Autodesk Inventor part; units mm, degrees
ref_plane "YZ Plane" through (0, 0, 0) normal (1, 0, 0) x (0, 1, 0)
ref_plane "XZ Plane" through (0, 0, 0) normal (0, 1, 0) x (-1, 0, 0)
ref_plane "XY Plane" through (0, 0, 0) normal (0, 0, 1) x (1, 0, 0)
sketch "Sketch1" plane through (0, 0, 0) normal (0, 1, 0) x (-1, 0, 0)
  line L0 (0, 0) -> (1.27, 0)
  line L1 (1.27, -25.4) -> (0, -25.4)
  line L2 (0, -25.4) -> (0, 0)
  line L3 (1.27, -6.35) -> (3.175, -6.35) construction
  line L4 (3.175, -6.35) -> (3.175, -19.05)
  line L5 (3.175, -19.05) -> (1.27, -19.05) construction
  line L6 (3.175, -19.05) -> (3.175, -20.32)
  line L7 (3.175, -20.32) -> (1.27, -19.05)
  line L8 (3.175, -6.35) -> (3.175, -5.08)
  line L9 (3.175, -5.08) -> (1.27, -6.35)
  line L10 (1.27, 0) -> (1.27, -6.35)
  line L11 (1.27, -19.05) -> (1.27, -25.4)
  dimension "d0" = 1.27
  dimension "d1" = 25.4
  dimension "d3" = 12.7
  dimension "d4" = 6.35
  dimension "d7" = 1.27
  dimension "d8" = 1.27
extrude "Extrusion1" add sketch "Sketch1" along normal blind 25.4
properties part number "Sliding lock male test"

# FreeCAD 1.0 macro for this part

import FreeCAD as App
import Part
import Sketcher

V = App.Vector
Q = App.Units.Quantity


def add_polygon(sketch, points):
    """Adds a closed chain of lines whose ends are joined by coincident constraints."""
    first, n = sketch.GeometryCount, len(points)
    for a, b in zip(points, points[1:] + points[:1]):
        sketch.addGeometry(Part.LineSegment(App.Vector(*a, 0), App.Vector(*b, 0)), False)
    for i in range(n):
        sketch.addConstraint(Sketcher.Constraint("Coincident", first + i, 2, first + (i + 1) % n, 1))

doc = App.newDocument("Part")
body = doc.addObject("PartDesign::Body", "Body")

# Sketch on XZ plane
sketch1 = doc.addObject("Sketcher::SketchObject", "Sketch")
body.addObject(sketch1)
sketch1.AttachmentSupport = (doc.XZ_Plane, [""])
sketch1.MapMode = "FlatFace"
add_polygon(sketch1, [(-1.3, 0), (0, 0), (0, -25.4), (-1.3, -25.4), (-1.3, -19.1), (-3.2, -20.3), (-3.2, -5.1), (-1.3, -6.3)])  # lines 0-7
sketch1.addConstraint([
    Sketcher.Constraint("Horizontal", 0),
    Sketcher.Constraint("Vertical", 1),
    Sketcher.Constraint("Horizontal", 2),
    Sketcher.Constraint("Vertical", 3),
    Sketcher.Constraint("Vertical", 5),
    Sketcher.Constraint("Vertical", 7),
    Sketcher.Constraint("Coincident", 0, 2, -1, 1),
    Sketcher.Constraint("Vertical", 3, 2, 6, 2),
    Sketcher.Constraint("Equal", 3, 7),
    Sketcher.Constraint("Equal", 4, 6),
    Sketcher.Constraint("DistanceY", 1, 2, 1, 1, Q("1 in")),
    Sketcher.Constraint("DistanceX", 0, 1, 0, 2, Q("0.05 in")),
    Sketcher.Constraint("DistanceY", 3, 1, 3, 2, Q("0.25 in")),
    Sketcher.Constraint("DistanceY", 4, 2, 3, 2, Q("0.05 in")),
    Sketcher.Constraint("Angle", 4, Q("-146.31 deg")),
])
pad1 = doc.addObject("PartDesign::Pad", "Pad")
body.addObject(pad1)
pad1.Profile = sketch1
pad1.Length = Q("1 in")
pad1.Reversed = True

doc.recompute()
